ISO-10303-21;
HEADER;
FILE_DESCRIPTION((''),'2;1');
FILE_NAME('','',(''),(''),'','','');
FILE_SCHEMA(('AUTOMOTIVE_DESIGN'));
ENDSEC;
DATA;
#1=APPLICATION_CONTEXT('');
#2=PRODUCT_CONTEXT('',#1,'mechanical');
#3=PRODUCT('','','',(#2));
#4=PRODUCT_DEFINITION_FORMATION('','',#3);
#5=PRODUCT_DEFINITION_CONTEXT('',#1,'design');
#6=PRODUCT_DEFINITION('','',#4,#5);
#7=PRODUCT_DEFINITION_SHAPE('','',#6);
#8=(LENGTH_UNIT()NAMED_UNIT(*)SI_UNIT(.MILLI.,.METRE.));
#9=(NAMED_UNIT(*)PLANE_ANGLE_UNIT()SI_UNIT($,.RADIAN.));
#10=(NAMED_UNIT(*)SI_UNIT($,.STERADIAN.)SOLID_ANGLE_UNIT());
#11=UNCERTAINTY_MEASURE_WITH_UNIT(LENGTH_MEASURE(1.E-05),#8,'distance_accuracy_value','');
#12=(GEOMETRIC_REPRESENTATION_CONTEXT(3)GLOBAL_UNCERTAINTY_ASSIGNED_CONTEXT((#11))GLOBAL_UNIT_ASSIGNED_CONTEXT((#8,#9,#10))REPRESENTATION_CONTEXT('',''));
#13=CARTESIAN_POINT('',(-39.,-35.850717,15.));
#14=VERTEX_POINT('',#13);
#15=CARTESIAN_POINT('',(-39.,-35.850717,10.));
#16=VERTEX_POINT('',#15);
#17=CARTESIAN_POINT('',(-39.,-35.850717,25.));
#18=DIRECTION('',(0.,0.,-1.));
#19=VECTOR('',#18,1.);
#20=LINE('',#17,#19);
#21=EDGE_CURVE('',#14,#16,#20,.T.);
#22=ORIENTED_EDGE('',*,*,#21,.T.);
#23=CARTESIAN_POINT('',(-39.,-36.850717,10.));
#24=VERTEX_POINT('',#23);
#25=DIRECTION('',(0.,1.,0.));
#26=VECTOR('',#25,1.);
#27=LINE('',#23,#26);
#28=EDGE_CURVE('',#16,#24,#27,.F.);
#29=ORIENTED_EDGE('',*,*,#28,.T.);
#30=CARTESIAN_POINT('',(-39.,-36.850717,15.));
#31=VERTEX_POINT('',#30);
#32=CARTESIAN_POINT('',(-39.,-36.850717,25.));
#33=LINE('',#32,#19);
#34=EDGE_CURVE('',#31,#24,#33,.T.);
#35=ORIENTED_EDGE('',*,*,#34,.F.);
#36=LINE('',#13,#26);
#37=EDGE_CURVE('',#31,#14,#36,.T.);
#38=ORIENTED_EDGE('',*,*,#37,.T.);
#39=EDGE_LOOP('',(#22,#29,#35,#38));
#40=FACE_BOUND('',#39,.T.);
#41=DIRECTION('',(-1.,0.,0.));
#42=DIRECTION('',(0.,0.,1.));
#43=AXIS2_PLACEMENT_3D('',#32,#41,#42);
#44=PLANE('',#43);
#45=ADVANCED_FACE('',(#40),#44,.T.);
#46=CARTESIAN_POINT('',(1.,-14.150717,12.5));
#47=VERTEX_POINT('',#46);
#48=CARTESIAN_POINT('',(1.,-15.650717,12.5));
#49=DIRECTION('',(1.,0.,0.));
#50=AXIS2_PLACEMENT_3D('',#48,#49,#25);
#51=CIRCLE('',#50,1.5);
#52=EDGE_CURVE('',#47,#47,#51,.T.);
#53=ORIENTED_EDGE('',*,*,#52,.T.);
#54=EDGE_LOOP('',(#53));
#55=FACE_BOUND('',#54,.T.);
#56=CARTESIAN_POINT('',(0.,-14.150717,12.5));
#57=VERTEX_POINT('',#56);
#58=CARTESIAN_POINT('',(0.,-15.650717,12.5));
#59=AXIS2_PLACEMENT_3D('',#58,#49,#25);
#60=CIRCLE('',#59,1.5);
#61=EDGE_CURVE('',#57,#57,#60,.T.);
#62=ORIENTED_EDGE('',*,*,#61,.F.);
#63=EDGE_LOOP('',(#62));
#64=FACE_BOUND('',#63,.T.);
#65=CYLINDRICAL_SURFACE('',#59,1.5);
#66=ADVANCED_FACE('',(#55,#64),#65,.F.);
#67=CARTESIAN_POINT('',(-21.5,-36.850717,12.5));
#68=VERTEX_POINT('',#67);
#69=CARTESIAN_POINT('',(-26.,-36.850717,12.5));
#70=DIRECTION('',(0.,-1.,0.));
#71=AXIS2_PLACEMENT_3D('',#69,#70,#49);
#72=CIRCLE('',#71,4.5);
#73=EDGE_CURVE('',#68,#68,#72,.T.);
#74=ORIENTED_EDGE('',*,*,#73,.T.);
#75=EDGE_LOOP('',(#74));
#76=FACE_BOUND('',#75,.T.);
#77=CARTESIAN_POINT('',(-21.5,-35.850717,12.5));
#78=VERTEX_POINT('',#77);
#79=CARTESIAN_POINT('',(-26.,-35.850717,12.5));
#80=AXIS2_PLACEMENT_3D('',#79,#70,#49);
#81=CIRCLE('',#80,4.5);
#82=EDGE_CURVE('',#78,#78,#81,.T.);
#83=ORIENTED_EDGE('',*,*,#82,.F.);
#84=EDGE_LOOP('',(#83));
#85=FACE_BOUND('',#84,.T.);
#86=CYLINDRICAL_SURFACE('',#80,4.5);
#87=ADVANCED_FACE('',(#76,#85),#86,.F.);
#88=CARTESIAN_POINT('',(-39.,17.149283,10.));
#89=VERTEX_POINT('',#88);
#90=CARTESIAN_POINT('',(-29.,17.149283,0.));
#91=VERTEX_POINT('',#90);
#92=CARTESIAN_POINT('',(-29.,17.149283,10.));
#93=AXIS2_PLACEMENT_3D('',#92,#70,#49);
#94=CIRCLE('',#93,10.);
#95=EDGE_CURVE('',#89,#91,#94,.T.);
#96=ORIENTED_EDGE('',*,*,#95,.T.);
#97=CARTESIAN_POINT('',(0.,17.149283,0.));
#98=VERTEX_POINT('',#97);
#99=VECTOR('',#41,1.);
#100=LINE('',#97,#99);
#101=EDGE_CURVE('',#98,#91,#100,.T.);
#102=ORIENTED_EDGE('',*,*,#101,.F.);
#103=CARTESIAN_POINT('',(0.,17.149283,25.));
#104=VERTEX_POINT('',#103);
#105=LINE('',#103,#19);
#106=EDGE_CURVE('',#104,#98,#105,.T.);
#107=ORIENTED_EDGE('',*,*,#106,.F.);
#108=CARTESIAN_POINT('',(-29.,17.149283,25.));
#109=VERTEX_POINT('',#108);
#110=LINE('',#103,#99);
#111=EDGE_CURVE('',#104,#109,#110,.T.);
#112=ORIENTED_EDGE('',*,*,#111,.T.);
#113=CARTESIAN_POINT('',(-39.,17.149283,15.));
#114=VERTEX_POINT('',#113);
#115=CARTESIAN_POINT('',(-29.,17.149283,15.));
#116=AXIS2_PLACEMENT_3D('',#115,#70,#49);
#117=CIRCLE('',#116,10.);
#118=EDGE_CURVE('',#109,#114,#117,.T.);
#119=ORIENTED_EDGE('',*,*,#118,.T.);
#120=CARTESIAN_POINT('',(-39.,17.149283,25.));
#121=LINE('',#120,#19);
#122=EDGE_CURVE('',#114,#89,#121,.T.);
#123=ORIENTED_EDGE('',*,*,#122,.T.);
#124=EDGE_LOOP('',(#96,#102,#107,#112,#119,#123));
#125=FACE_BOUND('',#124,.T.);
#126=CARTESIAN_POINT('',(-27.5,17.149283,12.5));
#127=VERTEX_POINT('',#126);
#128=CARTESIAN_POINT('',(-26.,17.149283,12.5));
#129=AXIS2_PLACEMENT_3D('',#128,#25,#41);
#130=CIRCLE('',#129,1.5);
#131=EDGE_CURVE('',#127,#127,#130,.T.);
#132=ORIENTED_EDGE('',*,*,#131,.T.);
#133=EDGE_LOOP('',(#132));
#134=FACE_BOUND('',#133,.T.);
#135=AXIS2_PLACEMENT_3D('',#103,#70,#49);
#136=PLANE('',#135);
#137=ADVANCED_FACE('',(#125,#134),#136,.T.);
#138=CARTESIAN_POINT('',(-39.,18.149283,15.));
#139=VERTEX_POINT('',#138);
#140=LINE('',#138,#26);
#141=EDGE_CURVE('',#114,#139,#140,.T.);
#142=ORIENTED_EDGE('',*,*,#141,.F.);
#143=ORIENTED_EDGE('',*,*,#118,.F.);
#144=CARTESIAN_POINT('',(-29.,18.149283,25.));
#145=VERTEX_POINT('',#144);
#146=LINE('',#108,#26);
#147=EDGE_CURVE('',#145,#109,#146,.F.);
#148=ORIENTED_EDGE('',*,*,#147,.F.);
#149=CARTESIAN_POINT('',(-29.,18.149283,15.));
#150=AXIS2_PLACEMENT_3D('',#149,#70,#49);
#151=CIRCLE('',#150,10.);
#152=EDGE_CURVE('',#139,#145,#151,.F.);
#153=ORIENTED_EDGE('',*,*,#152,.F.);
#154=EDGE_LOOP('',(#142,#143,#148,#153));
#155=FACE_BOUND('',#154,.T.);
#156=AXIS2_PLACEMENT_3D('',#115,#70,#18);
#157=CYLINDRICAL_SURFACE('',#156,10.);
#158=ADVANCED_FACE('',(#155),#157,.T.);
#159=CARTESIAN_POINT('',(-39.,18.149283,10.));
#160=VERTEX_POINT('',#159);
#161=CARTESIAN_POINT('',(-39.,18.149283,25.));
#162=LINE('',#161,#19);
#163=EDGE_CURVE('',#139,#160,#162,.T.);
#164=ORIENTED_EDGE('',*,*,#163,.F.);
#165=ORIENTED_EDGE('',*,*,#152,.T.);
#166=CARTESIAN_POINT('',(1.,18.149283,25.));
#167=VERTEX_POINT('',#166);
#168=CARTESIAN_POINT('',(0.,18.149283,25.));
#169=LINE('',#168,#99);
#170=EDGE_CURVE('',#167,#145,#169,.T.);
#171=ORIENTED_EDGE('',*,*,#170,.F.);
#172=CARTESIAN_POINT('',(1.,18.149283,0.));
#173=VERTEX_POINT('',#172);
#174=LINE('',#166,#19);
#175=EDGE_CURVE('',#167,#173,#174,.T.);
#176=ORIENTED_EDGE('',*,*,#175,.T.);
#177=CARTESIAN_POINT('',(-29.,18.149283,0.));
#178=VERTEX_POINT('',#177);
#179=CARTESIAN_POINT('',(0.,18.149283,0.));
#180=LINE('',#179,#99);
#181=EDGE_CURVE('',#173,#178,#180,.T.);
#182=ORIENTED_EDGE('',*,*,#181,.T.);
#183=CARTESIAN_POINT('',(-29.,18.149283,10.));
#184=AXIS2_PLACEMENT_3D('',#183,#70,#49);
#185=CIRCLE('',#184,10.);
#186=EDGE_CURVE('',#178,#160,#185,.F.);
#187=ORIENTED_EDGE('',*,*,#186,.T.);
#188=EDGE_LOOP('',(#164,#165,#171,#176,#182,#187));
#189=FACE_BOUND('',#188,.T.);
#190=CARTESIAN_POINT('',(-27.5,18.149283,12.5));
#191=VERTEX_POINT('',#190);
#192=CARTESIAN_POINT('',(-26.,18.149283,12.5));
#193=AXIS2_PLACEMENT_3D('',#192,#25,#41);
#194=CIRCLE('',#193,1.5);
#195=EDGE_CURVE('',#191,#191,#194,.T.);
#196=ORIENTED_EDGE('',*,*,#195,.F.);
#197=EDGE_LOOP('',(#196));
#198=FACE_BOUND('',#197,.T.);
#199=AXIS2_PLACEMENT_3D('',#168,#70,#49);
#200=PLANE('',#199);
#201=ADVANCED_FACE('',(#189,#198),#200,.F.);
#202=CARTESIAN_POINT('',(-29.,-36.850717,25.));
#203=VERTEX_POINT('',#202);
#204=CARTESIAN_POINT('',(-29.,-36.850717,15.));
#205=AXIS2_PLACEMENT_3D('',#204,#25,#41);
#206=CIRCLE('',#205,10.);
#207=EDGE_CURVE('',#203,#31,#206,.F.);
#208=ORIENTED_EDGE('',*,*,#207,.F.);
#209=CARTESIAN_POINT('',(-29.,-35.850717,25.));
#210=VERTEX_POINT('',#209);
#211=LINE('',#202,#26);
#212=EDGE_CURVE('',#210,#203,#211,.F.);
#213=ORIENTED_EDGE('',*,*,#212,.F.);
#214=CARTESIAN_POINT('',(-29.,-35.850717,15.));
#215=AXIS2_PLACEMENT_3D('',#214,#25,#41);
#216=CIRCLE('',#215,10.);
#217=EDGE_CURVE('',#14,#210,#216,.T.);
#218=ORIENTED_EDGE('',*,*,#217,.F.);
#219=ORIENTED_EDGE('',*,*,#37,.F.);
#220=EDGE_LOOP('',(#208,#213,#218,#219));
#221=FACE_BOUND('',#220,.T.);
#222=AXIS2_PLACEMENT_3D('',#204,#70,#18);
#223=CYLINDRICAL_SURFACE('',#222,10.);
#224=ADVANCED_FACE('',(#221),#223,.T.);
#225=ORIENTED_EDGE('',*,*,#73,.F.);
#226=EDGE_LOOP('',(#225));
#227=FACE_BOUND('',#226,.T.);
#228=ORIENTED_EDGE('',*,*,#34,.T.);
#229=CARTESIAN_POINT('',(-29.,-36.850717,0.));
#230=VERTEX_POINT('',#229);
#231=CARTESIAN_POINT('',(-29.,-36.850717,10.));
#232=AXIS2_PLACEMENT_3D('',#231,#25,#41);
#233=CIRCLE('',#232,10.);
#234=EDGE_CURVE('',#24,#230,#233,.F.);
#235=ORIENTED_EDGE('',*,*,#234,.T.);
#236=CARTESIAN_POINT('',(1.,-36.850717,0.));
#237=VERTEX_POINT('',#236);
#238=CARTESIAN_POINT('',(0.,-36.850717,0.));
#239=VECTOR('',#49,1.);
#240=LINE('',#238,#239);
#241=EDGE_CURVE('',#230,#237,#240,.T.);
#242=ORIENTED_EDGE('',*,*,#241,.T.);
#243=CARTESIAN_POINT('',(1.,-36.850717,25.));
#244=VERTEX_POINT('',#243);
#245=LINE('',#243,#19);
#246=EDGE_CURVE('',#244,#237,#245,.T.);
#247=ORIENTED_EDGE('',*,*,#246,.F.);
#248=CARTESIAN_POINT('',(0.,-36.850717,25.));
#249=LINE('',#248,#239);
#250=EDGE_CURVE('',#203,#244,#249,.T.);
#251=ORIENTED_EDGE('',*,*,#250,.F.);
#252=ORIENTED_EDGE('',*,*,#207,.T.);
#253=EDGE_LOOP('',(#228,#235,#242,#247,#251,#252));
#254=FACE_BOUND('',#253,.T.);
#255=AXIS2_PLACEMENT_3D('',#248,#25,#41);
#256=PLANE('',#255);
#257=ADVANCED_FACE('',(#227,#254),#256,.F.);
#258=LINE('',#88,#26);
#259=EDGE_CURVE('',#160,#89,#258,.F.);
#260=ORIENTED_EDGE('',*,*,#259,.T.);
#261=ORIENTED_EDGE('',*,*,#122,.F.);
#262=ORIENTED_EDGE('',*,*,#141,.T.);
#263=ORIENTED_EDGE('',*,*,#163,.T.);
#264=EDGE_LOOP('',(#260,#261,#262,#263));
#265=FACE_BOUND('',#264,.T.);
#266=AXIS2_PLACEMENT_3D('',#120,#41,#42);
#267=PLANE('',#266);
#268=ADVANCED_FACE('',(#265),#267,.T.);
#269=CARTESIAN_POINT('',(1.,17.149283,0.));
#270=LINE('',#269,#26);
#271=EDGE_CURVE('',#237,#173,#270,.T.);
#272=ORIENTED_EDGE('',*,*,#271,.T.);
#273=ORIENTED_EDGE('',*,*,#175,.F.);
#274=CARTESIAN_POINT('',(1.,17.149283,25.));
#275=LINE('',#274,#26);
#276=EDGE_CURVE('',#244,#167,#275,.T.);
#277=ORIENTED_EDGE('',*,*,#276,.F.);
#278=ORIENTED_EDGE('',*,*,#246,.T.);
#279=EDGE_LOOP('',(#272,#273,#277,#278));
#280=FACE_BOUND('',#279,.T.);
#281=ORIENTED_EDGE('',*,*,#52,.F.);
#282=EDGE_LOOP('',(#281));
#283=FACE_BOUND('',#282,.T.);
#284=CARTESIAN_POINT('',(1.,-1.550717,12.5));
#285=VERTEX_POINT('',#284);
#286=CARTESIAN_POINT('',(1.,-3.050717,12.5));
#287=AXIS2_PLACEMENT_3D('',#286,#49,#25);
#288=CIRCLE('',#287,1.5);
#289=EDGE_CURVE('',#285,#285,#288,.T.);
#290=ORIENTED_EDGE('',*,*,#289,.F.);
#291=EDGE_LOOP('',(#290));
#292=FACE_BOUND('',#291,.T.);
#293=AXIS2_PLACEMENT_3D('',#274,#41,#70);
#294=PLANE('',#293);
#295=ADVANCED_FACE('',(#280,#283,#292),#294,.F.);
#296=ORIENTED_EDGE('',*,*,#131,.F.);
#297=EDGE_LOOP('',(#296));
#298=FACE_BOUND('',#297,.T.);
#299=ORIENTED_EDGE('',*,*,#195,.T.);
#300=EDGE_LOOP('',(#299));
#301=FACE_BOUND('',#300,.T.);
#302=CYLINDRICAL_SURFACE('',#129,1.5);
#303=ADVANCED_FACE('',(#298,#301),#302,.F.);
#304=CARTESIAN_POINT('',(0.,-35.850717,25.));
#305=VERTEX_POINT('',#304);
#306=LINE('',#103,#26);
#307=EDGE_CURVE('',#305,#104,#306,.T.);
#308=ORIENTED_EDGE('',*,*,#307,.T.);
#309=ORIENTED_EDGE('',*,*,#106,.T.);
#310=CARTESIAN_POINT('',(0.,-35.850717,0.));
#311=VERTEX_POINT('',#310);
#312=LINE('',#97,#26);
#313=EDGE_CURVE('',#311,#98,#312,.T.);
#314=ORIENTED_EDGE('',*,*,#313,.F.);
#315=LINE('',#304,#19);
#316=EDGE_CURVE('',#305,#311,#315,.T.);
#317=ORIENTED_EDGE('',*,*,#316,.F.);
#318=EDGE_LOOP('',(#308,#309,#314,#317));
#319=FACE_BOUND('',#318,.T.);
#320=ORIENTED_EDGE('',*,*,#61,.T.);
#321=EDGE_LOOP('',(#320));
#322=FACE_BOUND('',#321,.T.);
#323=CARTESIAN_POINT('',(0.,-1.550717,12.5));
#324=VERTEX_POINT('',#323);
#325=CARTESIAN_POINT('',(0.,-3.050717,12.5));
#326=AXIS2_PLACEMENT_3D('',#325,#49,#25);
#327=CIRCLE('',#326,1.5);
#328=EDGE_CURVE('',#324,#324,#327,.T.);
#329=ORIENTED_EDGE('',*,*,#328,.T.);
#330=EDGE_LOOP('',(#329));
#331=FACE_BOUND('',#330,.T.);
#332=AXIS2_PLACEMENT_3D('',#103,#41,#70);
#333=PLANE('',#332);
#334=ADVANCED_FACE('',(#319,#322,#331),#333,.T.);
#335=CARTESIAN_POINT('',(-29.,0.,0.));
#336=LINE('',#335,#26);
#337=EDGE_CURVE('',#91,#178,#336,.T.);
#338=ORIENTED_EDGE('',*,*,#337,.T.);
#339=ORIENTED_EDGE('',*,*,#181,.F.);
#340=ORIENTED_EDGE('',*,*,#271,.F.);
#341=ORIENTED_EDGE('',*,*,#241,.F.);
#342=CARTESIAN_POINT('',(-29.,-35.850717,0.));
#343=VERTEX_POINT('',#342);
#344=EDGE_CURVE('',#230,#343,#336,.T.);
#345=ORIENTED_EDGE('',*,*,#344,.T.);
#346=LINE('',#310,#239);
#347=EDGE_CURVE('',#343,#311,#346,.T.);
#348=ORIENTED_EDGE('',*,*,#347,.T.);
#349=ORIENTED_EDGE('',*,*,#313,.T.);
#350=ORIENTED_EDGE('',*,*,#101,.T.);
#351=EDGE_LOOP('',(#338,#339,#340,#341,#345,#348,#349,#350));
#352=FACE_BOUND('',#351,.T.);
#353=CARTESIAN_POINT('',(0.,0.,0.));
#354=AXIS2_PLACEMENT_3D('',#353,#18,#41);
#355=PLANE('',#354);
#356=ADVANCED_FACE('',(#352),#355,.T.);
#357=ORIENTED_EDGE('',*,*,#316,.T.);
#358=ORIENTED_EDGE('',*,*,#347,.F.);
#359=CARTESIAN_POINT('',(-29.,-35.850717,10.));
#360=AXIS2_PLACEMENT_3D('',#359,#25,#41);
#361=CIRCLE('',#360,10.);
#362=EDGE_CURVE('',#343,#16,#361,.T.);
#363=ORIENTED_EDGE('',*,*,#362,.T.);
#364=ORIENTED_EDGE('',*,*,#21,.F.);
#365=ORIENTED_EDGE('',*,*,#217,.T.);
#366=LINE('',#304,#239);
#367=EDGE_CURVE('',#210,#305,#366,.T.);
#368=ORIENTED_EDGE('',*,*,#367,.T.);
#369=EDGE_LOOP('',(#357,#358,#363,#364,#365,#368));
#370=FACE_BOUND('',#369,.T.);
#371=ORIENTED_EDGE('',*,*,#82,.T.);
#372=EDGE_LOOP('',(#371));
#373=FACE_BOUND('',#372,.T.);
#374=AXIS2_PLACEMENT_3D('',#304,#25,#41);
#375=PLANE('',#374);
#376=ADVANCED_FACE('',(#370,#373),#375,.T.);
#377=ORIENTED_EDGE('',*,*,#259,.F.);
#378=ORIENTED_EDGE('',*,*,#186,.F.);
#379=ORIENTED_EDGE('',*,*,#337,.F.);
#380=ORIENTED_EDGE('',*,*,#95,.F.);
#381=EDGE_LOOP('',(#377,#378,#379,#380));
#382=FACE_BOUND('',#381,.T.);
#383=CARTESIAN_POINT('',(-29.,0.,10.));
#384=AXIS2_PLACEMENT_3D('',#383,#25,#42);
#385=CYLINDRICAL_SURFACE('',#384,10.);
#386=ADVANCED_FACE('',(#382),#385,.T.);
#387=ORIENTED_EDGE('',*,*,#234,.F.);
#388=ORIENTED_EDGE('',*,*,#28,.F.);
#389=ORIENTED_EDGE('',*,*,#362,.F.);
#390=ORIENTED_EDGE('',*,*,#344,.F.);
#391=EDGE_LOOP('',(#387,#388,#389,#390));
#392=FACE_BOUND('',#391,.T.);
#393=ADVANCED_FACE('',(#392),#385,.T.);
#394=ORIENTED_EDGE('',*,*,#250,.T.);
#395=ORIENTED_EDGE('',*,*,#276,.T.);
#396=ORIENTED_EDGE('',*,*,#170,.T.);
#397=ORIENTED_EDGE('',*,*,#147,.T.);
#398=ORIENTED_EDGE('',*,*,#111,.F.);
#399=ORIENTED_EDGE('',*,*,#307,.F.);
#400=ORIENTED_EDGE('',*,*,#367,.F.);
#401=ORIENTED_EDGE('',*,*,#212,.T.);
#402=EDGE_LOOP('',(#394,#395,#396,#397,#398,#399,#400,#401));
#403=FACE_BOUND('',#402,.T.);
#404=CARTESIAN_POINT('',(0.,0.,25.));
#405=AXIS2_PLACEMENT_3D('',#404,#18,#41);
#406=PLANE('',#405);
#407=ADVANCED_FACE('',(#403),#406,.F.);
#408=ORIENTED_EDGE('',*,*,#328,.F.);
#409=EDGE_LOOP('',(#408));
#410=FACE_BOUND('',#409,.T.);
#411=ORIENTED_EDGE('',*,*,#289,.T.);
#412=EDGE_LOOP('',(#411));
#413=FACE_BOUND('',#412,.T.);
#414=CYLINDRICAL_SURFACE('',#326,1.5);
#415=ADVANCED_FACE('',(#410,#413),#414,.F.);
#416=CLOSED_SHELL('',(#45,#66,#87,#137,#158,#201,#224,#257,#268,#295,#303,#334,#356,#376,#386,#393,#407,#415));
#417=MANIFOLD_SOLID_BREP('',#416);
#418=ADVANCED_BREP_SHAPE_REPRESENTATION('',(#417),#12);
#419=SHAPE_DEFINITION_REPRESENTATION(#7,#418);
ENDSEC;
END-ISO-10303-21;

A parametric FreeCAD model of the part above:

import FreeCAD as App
import Part
import Sketcher
from FreeCAD import Vector


def edges_at(feature, points):
    """Names of the edges that pass closest to the given points."""
    edges = feature.Shape.Edges
    near = lambda p: min(range(len(edges)), key=lambda i: edges[i].distToShape(Part.Vertex(*p))[0])
    return sorted({f"Edge{near(p) + 1}" for p in points})

doc = App.newDocument("Part")
body = doc.addObject("PartDesign::Body", "Body")

# Sketch on XY plane
sketch1 = body.newObject("Sketcher::SketchObject", "Sketch")
sketch1.AttachmentSupport = (doc.getObject("XY_Plane"), [""])
sketch1.MapMode = "FlatFace"
sketch1.addGeometry(Part.LineSegment(Vector(-39, 17.1, 0), Vector(0, 17.1, 0)), False)
sketch1.addGeometry(Part.LineSegment(Vector(0, 17.1, 0), Vector(0, -35.9, 0)), False)
sketch1.addGeometry(Part.LineSegment(Vector(0, -35.9, 0), Vector(-39, -35.9, 0)), False)
sketch1.addGeometry(Part.LineSegment(Vector(-39, -35.9, 0), Vector(-39, -36.9, 0)), False)
sketch1.addGeometry(Part.LineSegment(Vector(-39, -36.9, 0), Vector(1, -36.9, 0)), False)
sketch1.addGeometry(Part.LineSegment(Vector(1, -36.9, 0), Vector(1, 18.1, 0)), False)
sketch1.addGeometry(Part.LineSegment(Vector(1, 18.1, 0), Vector(-39, 18.1, 0)), False)
sketch1.addGeometry(Part.LineSegment(Vector(-39, 18.1, 0), Vector(-39, 17.1, 0)), False)
sketch1.addConstraint(Sketcher.Constraint("Coincident", 0, 2, 1, 1))
sketch1.addConstraint(Sketcher.Constraint("Coincident", 1, 2, 2, 1))
sketch1.addConstraint(Sketcher.Constraint("Coincident", 2, 2, 3, 1))
sketch1.addConstraint(Sketcher.Constraint("Coincident", 3, 2, 4, 1))
sketch1.addConstraint(Sketcher.Constraint("Coincident", 4, 2, 5, 1))
sketch1.addConstraint(Sketcher.Constraint("Coincident", 5, 2, 6, 1))
sketch1.addConstraint(Sketcher.Constraint("Coincident", 6, 2, 7, 1))
sketch1.addConstraint(Sketcher.Constraint("Coincident", 7, 2, 0, 1))
sketch1.addConstraint(Sketcher.Constraint("Horizontal", 0))
sketch1.addConstraint(Sketcher.Constraint("Vertical", 1))
sketch1.addConstraint(Sketcher.Constraint("Horizontal", 2))
sketch1.addConstraint(Sketcher.Constraint("Vertical", 3))
sketch1.addConstraint(Sketcher.Constraint("Horizontal", 4))
sketch1.addConstraint(Sketcher.Constraint("Vertical", 5))
sketch1.addConstraint(Sketcher.Constraint("Horizontal", 6))
sketch1.addConstraint(Sketcher.Constraint("Vertical", 7))
sketch1.addConstraint(Sketcher.Constraint("PointOnObject", 0, 2, -2))
sketch1.addConstraint(Sketcher.Constraint("Vertical", 3, 2, 6, 2))
sketch1.addConstraint(Sketcher.Constraint("Equal", 3, 7))
sketch1.addConstraint(Sketcher.Constraint("DistanceX", 0, 1, 0, 2, 39.0))
sketch1.addConstraint(Sketcher.Constraint("DistanceX", 4, 1, 4, 2, 40.0))
sketch1.addConstraint(Sketcher.Constraint("DistanceY", 1, 2, 1, 1, 53.0))
sketch1.addConstraint(Sketcher.Constraint("DistanceY", 3, 2, 3, 1, 1.0))
sketch1.addConstraint(Sketcher.Constraint("DistanceY", -1, 1, 0, 2, 17.149283))
pad1 = body.newObject("PartDesign::Pad", "Pad")
pad1.Profile = sketch1
pad1.Length = 25

# Sketch on XZ plane
sketch2 = body.newObject("Sketcher::SketchObject", "Sketch001")
sketch2.AttachmentSupport = (doc.getObject("XZ_Plane"), [""])
sketch2.MapMode = "FlatFace"
sketch2.AttachmentOffset = App.Placement(Vector(0, 0, -18.149283), App.Rotation())
sketch2.addGeometry(Part.Circle(Vector(-26, 12.5, 0), Vector(0, 0, 1), 1.5), False)
sketch2.addConstraint(Sketcher.Constraint("Diameter", 0, 3.0))
sketch2.addConstraint(Sketcher.Constraint("DistanceX", 0, 3, -1, 1, 26.0))
sketch2.addConstraint(Sketcher.Constraint("DistanceY", -1, 1, 0, 3, 12.5))
pocket1 = body.newObject("PartDesign::Pocket", "Pocket")
pocket1.Profile = sketch2
pocket1.Length = 1
pocket1.Reversed = True

# Sketch on XZ plane
sketch3 = body.newObject("Sketcher::SketchObject", "Sketch002")
sketch3.AttachmentSupport = (doc.getObject("XZ_Plane"), [""])
sketch3.MapMode = "FlatFace"
sketch3.AttachmentOffset = App.Placement(Vector(0, 0, 36.850717), App.Rotation())
sketch3.addGeometry(Part.Circle(Vector(-26, 12.5, 0), Vector(0, 0, 1), 4.5), False)
sketch3.addConstraint(Sketcher.Constraint("Diameter", 0, 9.0))
sketch3.addConstraint(Sketcher.Constraint("DistanceX", 0, 3, -1, 1, 26.0))
sketch3.addConstraint(Sketcher.Constraint("DistanceY", -1, 1, 0, 3, 12.5))
pocket2 = body.newObject("PartDesign::Pocket", "Pocket001")
pocket2.Profile = sketch3
pocket2.Length = 1

# Sketch on YZ plane
sketch4 = body.newObject("Sketcher::SketchObject", "Sketch003")
sketch4.AttachmentSupport = (doc.getObject("YZ_Plane"), [""])
sketch4.MapMode = "FlatFace"
sketch4.AttachmentOffset = App.Placement(Vector(0, 0, 1), App.Rotation())
sketch4.addGeometry(Part.Circle(Vector(-15.7, 12.5, 0), Vector(0, 0, 1), 1.5), False)
sketch4.addGeometry(Part.Circle(Vector(-3.1, 12.5, 0), Vector(0, 0, 1), 1.5), False)
sketch4.addConstraint(Sketcher.Constraint("Equal", 0, 1))
sketch4.addConstraint(Sketcher.Constraint("Horizontal", 0, 3, 1, 3))
sketch4.addConstraint(Sketcher.Constraint("Diameter", 0, 3.0))
sketch4.addConstraint(Sketcher.Constraint("DistanceY", -1, 1, 0, 3, 12.5))
sketch4.addConstraint(Sketcher.Constraint("DistanceX", 0, 3, 1, 3, 12.6))
sketch4.addConstraint(Sketcher.Constraint("DistanceX", 0, 3, -1, 1, 15.650717))
pocket3 = body.newObject("PartDesign::Pocket", "Pocket002")
pocket3.Profile = sketch4
pocket3.Length = 1
doc.recompute()

fillet = body.newObject("PartDesign::Fillet", "Fillet")
fillet.Base = (pocket3, edges_at(pocket3, [
    (-39, -36.351, 25),
    (-39, 17.649, 25),
    (-39, -36.351, 0),
    (-39, 17.649, 0),
]))
fillet.Radius = 10

doc.recompute()
